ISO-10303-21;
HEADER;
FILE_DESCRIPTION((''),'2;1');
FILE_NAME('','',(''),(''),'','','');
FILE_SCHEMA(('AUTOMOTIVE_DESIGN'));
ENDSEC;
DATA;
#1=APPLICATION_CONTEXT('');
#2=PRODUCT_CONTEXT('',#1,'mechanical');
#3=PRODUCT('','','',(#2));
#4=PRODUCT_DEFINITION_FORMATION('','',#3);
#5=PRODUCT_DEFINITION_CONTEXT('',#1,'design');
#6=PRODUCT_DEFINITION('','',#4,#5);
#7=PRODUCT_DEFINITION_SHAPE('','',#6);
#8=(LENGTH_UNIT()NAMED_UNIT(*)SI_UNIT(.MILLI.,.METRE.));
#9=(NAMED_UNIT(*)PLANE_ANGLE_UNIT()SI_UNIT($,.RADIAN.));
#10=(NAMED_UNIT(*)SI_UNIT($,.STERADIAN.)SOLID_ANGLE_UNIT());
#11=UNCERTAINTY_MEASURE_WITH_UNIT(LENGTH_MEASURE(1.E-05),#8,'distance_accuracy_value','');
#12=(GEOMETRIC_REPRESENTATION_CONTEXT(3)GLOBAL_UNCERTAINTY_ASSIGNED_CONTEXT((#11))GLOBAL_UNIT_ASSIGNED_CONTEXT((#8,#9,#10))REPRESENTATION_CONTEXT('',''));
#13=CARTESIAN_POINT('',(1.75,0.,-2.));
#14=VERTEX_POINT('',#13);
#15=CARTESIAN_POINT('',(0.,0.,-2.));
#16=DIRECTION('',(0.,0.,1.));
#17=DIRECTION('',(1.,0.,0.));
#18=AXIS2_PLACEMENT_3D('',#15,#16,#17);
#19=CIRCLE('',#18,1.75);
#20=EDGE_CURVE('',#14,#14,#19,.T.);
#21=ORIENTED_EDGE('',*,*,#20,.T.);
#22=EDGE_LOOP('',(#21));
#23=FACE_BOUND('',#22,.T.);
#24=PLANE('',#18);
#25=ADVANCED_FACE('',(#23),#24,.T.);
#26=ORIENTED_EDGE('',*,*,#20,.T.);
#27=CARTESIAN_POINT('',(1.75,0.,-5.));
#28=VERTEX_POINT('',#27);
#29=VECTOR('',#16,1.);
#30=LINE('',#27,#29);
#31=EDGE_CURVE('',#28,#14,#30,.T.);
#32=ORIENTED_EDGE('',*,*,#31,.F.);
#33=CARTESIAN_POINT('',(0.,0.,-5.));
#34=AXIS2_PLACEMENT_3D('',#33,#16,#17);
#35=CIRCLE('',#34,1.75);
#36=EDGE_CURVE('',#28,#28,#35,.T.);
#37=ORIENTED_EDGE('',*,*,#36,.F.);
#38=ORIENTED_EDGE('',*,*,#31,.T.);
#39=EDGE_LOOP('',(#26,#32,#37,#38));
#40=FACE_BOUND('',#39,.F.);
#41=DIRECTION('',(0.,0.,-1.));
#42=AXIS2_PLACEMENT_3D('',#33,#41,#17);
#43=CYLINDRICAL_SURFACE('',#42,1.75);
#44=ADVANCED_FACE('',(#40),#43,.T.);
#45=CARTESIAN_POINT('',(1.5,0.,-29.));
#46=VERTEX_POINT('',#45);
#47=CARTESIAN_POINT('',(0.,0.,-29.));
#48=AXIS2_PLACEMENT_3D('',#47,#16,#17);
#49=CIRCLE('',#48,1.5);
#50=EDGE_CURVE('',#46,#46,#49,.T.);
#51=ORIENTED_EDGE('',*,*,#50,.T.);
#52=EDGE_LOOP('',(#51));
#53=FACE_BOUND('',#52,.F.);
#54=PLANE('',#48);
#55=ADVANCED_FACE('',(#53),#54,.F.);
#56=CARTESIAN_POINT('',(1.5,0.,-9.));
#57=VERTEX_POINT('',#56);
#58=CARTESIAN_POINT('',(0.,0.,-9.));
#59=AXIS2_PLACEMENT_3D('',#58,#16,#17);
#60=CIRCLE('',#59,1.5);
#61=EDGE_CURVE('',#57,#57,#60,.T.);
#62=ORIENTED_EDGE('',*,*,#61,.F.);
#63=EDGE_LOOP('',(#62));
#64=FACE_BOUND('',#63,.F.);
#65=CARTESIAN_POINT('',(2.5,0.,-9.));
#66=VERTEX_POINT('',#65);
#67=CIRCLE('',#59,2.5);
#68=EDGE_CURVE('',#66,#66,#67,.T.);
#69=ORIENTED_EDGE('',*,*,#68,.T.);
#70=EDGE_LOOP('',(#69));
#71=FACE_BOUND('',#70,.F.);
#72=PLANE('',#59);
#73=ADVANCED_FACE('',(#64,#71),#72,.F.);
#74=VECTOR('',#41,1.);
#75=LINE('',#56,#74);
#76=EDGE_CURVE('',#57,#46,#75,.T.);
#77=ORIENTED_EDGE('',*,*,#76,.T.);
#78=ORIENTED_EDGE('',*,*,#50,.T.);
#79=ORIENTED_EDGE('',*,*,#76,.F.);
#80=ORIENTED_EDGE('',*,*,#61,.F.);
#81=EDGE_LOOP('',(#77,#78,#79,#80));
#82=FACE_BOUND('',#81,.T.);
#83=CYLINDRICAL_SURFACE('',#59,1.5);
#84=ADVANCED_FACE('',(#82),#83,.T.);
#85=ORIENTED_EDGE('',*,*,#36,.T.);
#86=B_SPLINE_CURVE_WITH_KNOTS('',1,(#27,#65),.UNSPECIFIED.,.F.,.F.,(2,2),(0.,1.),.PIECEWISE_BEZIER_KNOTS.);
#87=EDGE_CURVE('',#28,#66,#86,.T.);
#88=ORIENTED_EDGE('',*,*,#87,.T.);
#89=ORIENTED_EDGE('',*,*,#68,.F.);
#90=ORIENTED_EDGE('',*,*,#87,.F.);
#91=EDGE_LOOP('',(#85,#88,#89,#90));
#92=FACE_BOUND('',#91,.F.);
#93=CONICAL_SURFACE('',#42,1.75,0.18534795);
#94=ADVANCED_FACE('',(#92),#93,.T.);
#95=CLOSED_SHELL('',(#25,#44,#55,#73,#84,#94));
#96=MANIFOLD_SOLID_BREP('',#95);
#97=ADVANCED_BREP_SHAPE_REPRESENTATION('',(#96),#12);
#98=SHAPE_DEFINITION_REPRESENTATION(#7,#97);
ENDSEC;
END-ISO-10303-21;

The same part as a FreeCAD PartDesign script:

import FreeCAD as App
import Part
import Sketcher
Q = App.Units.Quantity

doc = App.newDocument("Part")
body = doc.addObject("PartDesign::Body", "Body")

# Sketch on XY plane
sketch1 = body.newObject("Sketcher::SketchObject", "Sketch")
sketch1.AttachmentSupport = (doc.getObject("XY_Plane"), [""])
sketch1.MapMode = "FlatFace"
sketch1.AttachmentOffset = App.Placement(App.Vector(0, 0, -5), App.Rotation())
sketch1.addGeometry(Part.Circle(App.Vector(0, 0, 0), App.Vector(0, 0, 1), 1.8), False)
sketch1.addConstraint([
    Sketcher.Constraint("Coincident", 0, 3, -1, 1),
    Sketcher.Constraint("Diameter", 0, Q("3.5 mm")),
])

# Sketch on XY plane
sketch2 = body.newObject("Sketcher::SketchObject", "Sketch001")
sketch2.AttachmentSupport = (doc.getObject("XY_Plane"), [""])
sketch2.MapMode = "FlatFace"
sketch2.AttachmentOffset = App.Placement(App.Vector(0, 0, -9), App.Rotation())
sketch2.addGeometry(Part.Circle(App.Vector(0, 0, 0), App.Vector(0, 0, 1), 2.5), False)
sketch2.addConstraint([
    Sketcher.Constraint("Coincident", 0, 3, -1, 1),
    Sketcher.Constraint("Diameter", 0, Q("5 mm")),
])

additiveloft = body.newObject("PartDesign::AdditiveLoft", "AdditiveLoft")
additiveloft.Profile = sketch1
additiveloft.Sections = [sketch2]

# Sketch on XY plane
sketch3 = body.newObject("Sketcher::SketchObject", "Sketch002")
sketch3.AttachmentSupport = (doc.getObject("XY_Plane"), [""])
sketch3.MapMode = "FlatFace"
sketch3.AttachmentOffset = App.Placement(App.Vector(0, 0, -9), App.Rotation())
sketch3.addGeometry(Part.Circle(App.Vector(0, 0, 0), App.Vector(0, 0, 1), 1.5), False)
sketch3.addConstraint([
    Sketcher.Constraint("Coincident", 0, 3, -1, 1),
    Sketcher.Constraint("Diameter", 0, Q("3 mm")),
])
pad1 = body.newObject("PartDesign::Pad", "Pad")
pad1.Profile = sketch3
pad1.Length = 20
pad1.Reversed = True

# Sketch on XY plane
sketch4 = body.newObject("Sketcher::SketchObject", "Sketch003")
sketch4.AttachmentSupport = (doc.getObject("XY_Plane"), [""])
sketch4.MapMode = "FlatFace"
sketch4.AttachmentOffset = App.Placement(App.Vector(0, 0, -5), App.Rotation())
sketch4.addGeometry(Part.Circle(App.Vector(0, 0, 0), App.Vector(0, 0, 1), 1.8), False)
sketch4.addConstraint([
    Sketcher.Constraint("Coincident", 0, 3, -1, 1),
    Sketcher.Constraint("Diameter", 0, Q("3.5 mm")),
])
pad2 = body.newObject("PartDesign::Pad", "Pad001")
pad2.Profile = sketch4
pad2.Length = 3

doc.recompute()
